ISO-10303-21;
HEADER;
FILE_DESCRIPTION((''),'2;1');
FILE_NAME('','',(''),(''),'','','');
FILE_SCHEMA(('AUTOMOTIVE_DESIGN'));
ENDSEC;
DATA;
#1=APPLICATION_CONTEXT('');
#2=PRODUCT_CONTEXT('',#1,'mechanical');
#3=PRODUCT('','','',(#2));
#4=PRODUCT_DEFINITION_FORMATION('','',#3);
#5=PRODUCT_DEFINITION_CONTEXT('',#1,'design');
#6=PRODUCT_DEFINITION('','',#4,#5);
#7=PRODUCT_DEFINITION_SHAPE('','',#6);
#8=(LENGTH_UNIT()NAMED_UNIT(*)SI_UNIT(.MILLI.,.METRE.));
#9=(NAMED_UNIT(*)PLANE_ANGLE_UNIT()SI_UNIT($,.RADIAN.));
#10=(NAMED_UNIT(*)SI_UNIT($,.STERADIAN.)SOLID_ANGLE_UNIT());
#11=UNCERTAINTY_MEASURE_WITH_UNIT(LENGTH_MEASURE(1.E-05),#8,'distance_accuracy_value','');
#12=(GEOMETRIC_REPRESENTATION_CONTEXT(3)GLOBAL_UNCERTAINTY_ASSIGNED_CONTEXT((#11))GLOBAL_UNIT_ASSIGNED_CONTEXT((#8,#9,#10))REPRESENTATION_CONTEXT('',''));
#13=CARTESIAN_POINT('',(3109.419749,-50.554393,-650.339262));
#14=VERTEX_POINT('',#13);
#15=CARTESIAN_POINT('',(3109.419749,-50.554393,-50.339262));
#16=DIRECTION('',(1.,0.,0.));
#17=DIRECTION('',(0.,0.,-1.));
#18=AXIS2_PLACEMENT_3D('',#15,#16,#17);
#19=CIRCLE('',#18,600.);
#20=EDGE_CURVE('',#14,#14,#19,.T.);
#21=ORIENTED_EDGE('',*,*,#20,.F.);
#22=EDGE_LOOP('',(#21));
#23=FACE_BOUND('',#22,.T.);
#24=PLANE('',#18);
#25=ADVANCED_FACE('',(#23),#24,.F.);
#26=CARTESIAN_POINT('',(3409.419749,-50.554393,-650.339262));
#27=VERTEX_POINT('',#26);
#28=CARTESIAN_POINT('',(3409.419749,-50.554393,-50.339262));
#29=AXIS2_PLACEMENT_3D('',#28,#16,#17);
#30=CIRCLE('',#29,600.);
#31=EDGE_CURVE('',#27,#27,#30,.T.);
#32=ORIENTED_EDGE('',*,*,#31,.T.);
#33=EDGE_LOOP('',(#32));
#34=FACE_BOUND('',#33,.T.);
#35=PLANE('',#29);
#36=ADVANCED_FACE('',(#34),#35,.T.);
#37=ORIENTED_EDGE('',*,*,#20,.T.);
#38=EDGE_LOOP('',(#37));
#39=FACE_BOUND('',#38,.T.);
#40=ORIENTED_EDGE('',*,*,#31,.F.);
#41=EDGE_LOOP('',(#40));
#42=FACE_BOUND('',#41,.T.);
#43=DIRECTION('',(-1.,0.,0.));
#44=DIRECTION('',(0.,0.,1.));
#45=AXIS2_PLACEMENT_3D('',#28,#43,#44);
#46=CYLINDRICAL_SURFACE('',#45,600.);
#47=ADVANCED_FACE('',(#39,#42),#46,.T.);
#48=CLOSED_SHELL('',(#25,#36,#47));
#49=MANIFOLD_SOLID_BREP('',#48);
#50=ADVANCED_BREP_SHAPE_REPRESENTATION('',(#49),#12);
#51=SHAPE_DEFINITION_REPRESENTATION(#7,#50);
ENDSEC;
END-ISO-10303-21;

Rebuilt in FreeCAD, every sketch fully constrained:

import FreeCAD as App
import Part
import Sketcher

doc = App.newDocument("Part")
body = doc.addObject("PartDesign::Body", "Body")

sketch1 = doc.addObject("Sketcher::SketchObject", "Sketch")
body.addObject(sketch1)
sketch1.AttachmentSupport = (doc.YZ_Plane, [""])
sketch1.MapMode = "FlatFace"
sketch1.AttachmentOffset = App.Placement(App.Vector(0, 0, 3109.419749), App.Rotation())
sketch1.addGeometry(Part.Circle(App.Vector(-51, -50, 0), App.Vector(0, 0, 1), 600), False)
sketch1.addConstraint(Sketcher.Constraint("Diameter", 0, 1200.0))
sketch1.addConstraint(Sketcher.Constraint("DistanceY", 0, 3, -1, 1, 50.339262))
sketch1.addConstraint(Sketcher.Constraint("DistanceX", 0, 3, -1, 1, 50.554393))
pad1 = doc.addObject("PartDesign::Pad", "Pad")
body.addObject(pad1)
pad1.Profile = sketch1
pad1.Length = 300

doc.recompute()
